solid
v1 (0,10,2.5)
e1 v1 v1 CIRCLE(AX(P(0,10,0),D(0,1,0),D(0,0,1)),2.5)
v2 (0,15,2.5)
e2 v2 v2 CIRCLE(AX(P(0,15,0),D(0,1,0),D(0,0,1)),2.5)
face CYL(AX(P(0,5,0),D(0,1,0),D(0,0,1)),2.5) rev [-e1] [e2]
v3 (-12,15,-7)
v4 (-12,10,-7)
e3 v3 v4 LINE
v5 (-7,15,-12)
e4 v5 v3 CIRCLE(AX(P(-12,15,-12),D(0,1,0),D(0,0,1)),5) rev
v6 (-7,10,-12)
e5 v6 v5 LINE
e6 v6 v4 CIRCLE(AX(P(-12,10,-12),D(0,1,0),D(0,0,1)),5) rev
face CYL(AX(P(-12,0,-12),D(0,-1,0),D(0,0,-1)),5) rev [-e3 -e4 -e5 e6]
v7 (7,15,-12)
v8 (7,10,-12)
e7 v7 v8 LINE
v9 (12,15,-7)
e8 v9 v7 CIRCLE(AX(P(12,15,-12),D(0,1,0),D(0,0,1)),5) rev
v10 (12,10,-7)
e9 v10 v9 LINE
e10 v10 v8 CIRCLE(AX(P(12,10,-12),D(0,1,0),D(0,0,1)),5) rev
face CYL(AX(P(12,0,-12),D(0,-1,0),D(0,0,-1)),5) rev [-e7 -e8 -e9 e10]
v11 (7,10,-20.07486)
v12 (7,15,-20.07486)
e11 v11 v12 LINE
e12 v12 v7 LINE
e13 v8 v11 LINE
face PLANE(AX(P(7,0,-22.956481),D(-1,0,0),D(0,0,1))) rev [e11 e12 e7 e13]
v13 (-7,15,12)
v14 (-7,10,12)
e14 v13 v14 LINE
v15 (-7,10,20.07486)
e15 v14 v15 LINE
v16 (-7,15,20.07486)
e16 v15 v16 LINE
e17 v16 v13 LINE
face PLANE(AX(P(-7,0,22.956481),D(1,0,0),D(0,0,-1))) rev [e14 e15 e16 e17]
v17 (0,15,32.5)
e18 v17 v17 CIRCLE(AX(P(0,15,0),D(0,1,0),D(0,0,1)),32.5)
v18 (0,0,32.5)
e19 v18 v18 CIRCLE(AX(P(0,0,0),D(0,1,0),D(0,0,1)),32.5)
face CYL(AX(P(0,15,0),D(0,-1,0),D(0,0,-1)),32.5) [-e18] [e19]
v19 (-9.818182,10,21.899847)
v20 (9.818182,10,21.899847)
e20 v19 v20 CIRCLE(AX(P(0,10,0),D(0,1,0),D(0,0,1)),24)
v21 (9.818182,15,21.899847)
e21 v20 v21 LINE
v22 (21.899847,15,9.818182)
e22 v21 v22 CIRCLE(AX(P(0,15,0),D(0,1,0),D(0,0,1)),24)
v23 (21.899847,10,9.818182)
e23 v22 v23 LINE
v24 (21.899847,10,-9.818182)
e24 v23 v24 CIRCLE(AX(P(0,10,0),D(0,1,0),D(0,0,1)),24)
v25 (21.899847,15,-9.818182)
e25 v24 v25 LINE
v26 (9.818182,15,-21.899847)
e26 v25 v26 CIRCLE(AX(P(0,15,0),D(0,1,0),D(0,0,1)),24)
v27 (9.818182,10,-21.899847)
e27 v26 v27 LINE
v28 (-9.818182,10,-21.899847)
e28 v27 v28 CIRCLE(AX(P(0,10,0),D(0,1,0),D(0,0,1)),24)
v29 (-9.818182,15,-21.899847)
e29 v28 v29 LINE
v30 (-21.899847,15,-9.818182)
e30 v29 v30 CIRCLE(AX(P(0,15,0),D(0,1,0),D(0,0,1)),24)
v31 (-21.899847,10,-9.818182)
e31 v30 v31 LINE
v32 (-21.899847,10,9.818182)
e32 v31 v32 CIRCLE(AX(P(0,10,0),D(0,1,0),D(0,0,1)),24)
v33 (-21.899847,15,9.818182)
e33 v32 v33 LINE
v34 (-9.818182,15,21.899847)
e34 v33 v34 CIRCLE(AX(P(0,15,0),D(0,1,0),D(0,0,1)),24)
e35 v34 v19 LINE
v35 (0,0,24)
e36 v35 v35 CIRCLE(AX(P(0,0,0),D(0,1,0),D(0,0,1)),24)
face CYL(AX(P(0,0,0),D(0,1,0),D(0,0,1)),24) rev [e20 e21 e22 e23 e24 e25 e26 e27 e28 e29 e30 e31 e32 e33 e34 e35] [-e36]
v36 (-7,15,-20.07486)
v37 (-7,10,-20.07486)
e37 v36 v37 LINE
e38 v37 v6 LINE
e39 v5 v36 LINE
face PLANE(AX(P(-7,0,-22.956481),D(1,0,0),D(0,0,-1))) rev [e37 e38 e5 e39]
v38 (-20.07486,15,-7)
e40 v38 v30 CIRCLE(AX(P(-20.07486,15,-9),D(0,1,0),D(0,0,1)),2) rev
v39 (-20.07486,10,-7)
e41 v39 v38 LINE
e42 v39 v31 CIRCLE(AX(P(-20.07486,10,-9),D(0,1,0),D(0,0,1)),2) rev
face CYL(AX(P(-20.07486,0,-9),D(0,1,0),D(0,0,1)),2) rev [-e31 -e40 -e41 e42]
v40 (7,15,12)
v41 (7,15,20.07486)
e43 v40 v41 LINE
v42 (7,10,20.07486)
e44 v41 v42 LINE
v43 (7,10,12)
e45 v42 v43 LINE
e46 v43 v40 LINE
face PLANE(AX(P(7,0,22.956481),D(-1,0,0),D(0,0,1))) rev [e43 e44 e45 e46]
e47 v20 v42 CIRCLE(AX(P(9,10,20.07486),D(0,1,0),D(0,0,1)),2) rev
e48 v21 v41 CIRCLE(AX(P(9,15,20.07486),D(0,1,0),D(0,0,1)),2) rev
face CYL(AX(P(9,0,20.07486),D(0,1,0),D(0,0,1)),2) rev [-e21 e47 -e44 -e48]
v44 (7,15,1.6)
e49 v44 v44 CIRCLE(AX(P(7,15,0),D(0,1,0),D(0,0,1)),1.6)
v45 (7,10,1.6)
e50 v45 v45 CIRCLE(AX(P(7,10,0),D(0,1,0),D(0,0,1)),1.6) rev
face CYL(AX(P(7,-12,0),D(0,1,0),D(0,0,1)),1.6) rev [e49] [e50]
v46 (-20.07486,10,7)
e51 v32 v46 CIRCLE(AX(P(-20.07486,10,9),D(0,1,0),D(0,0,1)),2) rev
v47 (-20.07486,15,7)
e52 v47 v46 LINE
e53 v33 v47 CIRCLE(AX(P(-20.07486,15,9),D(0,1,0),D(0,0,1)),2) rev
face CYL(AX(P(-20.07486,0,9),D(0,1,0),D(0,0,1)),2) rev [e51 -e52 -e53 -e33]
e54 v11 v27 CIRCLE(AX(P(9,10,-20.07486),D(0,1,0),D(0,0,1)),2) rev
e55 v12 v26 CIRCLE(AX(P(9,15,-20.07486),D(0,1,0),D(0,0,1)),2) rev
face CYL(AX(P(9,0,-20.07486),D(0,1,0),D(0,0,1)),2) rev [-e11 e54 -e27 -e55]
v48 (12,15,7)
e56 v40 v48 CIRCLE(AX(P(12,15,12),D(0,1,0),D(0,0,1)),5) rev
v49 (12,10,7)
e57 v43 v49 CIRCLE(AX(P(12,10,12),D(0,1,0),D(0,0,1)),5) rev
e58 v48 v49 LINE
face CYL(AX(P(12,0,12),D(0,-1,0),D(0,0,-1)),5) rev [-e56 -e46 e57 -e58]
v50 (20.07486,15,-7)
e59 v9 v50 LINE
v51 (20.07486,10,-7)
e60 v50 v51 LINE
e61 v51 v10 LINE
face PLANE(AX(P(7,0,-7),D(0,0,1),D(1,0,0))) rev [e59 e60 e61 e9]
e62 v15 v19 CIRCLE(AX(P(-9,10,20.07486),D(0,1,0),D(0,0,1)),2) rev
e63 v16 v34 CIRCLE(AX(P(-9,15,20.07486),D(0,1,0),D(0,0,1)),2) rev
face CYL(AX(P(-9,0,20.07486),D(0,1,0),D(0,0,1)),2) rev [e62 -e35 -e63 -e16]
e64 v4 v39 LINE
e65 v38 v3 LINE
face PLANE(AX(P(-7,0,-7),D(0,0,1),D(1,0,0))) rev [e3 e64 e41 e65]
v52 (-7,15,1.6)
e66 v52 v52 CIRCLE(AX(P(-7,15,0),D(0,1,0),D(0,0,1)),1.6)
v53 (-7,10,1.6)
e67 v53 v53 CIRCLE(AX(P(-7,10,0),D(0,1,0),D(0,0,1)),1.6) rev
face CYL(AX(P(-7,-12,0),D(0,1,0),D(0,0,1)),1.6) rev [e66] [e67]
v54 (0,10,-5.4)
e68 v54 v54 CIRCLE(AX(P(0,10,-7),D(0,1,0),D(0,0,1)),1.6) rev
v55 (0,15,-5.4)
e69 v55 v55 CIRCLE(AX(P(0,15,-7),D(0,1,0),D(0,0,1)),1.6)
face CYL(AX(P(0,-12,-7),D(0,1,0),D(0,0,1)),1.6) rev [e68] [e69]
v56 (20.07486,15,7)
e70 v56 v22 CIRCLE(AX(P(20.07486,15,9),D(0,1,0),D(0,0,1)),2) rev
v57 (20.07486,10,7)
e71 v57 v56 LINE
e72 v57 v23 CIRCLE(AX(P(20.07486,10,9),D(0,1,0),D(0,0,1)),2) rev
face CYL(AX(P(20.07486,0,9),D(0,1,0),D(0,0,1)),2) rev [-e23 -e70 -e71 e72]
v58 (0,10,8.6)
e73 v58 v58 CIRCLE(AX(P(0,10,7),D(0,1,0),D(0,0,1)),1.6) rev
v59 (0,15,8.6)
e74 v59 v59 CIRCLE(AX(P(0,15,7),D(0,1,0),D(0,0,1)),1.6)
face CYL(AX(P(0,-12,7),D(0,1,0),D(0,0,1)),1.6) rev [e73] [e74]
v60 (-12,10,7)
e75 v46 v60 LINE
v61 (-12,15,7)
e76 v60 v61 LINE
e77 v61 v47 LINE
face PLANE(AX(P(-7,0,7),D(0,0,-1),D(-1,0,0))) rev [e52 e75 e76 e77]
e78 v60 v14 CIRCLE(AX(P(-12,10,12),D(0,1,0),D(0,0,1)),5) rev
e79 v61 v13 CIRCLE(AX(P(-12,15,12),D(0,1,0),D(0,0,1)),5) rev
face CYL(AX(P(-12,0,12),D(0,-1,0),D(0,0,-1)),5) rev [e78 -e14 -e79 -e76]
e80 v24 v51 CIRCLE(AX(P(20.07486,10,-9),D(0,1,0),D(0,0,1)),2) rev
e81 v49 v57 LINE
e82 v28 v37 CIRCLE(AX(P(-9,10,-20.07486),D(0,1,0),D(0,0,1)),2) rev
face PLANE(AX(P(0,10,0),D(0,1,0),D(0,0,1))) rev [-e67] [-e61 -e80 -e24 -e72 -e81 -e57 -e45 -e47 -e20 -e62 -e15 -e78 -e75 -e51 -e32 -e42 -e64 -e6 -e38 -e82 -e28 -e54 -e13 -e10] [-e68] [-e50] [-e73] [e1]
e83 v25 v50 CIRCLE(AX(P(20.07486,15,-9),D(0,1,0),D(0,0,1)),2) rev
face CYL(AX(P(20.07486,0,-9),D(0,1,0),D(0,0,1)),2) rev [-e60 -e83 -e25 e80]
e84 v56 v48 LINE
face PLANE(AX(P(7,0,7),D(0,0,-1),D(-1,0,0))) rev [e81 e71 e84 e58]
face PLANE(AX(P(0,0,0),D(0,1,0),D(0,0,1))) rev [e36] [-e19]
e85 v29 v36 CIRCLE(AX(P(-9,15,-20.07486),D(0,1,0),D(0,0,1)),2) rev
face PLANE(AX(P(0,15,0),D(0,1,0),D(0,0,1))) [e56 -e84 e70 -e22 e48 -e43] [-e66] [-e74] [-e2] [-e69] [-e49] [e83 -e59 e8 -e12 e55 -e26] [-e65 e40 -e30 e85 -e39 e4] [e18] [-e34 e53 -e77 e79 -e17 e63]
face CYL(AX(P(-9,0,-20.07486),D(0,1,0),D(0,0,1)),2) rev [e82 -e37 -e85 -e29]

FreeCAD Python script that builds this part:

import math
import FreeCAD as App
import Part
import Sketcher
Q = App.Units.Quantity


def edges_at(feature, points):
    """Names of the edges that pass closest to the given points."""
    edges = feature.Shape.Edges
    near = lambda p: min(range(len(edges)), key=lambda i: edges[i].distToShape(Part.Vertex(*p))[0])
    return sorted({f"Edge{near(p) + 1}" for p in points})

doc = App.newDocument("Part")
body = doc.addObject("PartDesign::Body", "Body")

sketch1 = doc.addObject("Sketcher::SketchObject", "Sketch")
body.addObject(sketch1)
sketch1.AttachmentSupport = (doc.XZ_Plane, [""])
sketch1.MapMode = "FlatFace"
sketch1.addGeometry(Part.Circle(App.Vector(0, 0, 0), App.Vector(0, 0, 1), 32), False)
sketch1.addConstraint(Sketcher.Constraint("Coincident", 0, 3, -1, 1))
sketch1.addConstraint(Sketcher.Constraint("Diameter", 0, Q("65 mm")))
pad1 = doc.addObject("PartDesign::Pad", "Pad")
body.addObject(pad1)
pad1.Profile = sketch1
pad1.Length = 15
pad1.Reversed = True

sketch2 = doc.addObject("Sketcher::SketchObject", "Sketch001")
body.addObject(sketch2)
sketch2.AttachmentSupport = (doc.XZ_Plane, [""])
sketch2.MapMode = "FlatFace"
sketch2.AttachmentOffset = App.Placement(App.Vector(0, 0, -15), App.Rotation())
sketch2.addGeometry(Part.Circle(App.Vector(7, 0, 0), App.Vector(0, 0, 1), 1.6), False)
sketch2.addGeometry(Part.Circle(App.Vector(0, 7, 0), App.Vector(0, 0, 1), 1.6), False)
sketch2.addGeometry(Part.Circle(App.Vector(-7, 0, 0), App.Vector(0, 0, 1), 1.6), False)
sketch2.addGeometry(Part.Circle(App.Vector(0, -7, 0), App.Vector(0, 0, 1), 1.6), False)
sketch2.addConstraint(Sketcher.Constraint("Equal", 0, 1))
sketch2.addConstraint(Sketcher.Constraint("Equal", 1, 2))
sketch2.addConstraint(Sketcher.Constraint("Equal", 2, 3))
sketch2.addConstraint(Sketcher.Constraint("Symmetric", 0, 3, 2, 3, -1, 1))
sketch2.addConstraint(Sketcher.Constraint("Symmetric", 1, 3, 3, 3, -1, 1))
sketch2.addConstraint(Sketcher.Constraint("PointOnObject", 0, 3, -1))
sketch2.addConstraint(Sketcher.Constraint("PointOnObject", 1, 3, -2))
sketch2.addConstraint(Sketcher.Constraint("Diameter", 0, Q("3.2 mm")))
sketch2.addConstraint(Sketcher.Constraint("DistanceX", -1, 1, 0, 3, Q("7 mm")))
sketch2.addConstraint(Sketcher.Constraint("DistanceY", -1, 1, 1, 3, Q("7 mm")))
pocket1 = doc.addObject("PartDesign::Pocket", "Pocket")
body.addObject(pocket1)
pocket1.Profile = sketch2
pocket1.Length = 27
pocket1.Reversed = True

sketch3 = doc.addObject("Sketcher::SketchObject", "Sketch002")
body.addObject(sketch3)
sketch3.AttachmentSupport = (doc.XZ_Plane, [""])
sketch3.MapMode = "FlatFace"
sketch3.AttachmentOffset = App.Placement(App.Vector(0, 0, -15), App.Rotation())
sketch3.addGeometry(Part.LineSegment(App.Vector(7, -23, 0), App.Vector(7, -7, 0)), False)
sketch3.addGeometry(Part.LineSegment(App.Vector(7, -7, 0), App.Vector(23, -7, 0)), False)
sketch3.addGeometry(Part.ArcOfCircle(Part.Circle(App.Vector(0, 0, 0), App.Vector(0, 0, 1), 24), math.radians(-73), math.radians(-17)), False)
sketch3.addGeometry(Part.LineSegment(App.Vector(-23, -7, 0), App.Vector(-7, -7, 0)), False)
sketch3.addGeometry(Part.LineSegment(App.Vector(-7, -7, 0), App.Vector(-7, -23, 0)), False)
sketch3.addGeometry(Part.ArcOfCircle(Part.Circle(App.Vector(0, 0, 0), App.Vector(0, 0, 1), 24), math.radians(-163), math.radians(-107)), False)
sketch3.addGeometry(Part.LineSegment(App.Vector(23, 7, 0), App.Vector(7, 7, 0)), False)
sketch3.addGeometry(Part.LineSegment(App.Vector(7, 7, 0), App.Vector(7, 23, 0)), False)
sketch3.addGeometry(Part.ArcOfCircle(Part.Circle(App.Vector(0, 0, 0), App.Vector(0, 0, 1), 24), math.radians(17), math.radians(73)), False)
sketch3.addGeometry(Part.LineSegment(App.Vector(-7, 7, 0), App.Vector(-23, 7, 0)), False)
sketch3.addGeometry(Part.ArcOfCircle(Part.Circle(App.Vector(0, 0, 0), App.Vector(0, 0, 1), 24), math.radians(107), math.radians(163)), False)
sketch3.addGeometry(Part.LineSegment(App.Vector(-7, 23, 0), App.Vector(-7, 7, 0)), False)
sketch3.addConstraint(Sketcher.Constraint("Coincident", 0, 2, 1, 1))
sketch3.addConstraint(Sketcher.Constraint("Coincident", 1, 2, 2, 2))
sketch3.addConstraint(Sketcher.Constraint("Coincident", 2, 1, 0, 1))
sketch3.addConstraint(Sketcher.Constraint("Coincident", 3, 2, 4, 1))
sketch3.addConstraint(Sketcher.Constraint("Coincident", 4, 2, 5, 2))
sketch3.addConstraint(Sketcher.Constraint("Coincident", 5, 1, 3, 1))
sketch3.addConstraint(Sketcher.Constraint("Coincident", 6, 2, 7, 1))
sketch3.addConstraint(Sketcher.Constraint("Coincident", 7, 2, 8, 2))
sketch3.addConstraint(Sketcher.Constraint("Coincident", 8, 1, 6, 1))
sketch3.addConstraint(Sketcher.Constraint("Coincident", 9, 2, 10, 2))
sketch3.addConstraint(Sketcher.Constraint("Coincident", 10, 1, 11, 1))
sketch3.addConstraint(Sketcher.Constraint("Coincident", 11, 2, 9, 1))
sketch3.addConstraint(Sketcher.Constraint("Vertical", 0))
sketch3.addConstraint(Sketcher.Constraint("Horizontal", 1))
sketch3.addConstraint(Sketcher.Constraint("Horizontal", 3))
sketch3.addConstraint(Sketcher.Constraint("Vertical", 4))
sketch3.addConstraint(Sketcher.Constraint("Horizontal", 6))
sketch3.addConstraint(Sketcher.Constraint("Vertical", 7))
sketch3.addConstraint(Sketcher.Constraint("Horizontal", 9))
sketch3.addConstraint(Sketcher.Constraint("Vertical", 11))
sketch3.addConstraint(Sketcher.Constraint("Coincident", 2, 3, -1, 1))
sketch3.addConstraint(Sketcher.Constraint("Coincident", 5, 3, -1, 1))
sketch3.addConstraint(Sketcher.Constraint("Coincident", 8, 3, -1, 1))
sketch3.addConstraint(Sketcher.Constraint("Coincident", 10, 3, -1, 1))
sketch3.addConstraint(Sketcher.Constraint("Equal", 2, 5))
sketch3.addConstraint(Sketcher.Constraint("Equal", 5, 8))
sketch3.addConstraint(Sketcher.Constraint("Equal", 8, 10))
sketch3.addConstraint(Sketcher.Constraint("Symmetric", 3, 2, 6, 2, -1, 1))
sketch3.addConstraint(Sketcher.Constraint("Symmetric", 0, 2, 11, 2, -1, 1))
sketch3.addConstraint(Sketcher.Constraint("Symmetric", 0, 2, 3, 2, -2))
sketch3.addConstraint(Sketcher.Constraint("Equal", 9, 0))
sketch3.addConstraint(Sketcher.Constraint("Radius", 2, Q("24 mm")))
sketch3.addConstraint(Sketcher.Constraint("DistanceX", -1, 1, 0, 2, Q("7 mm")))
pocket2 = doc.addObject("PartDesign::Pocket", "Pocket001")
body.addObject(pocket2)
pocket2.Profile = sketch3
pocket2.Length = 15
pocket2.Reversed = True
doc.recompute()

fillet = doc.addObject("PartDesign::Fillet", "Fillet")
body.addObject(fillet)
fillet.Base = (pocket2, edges_at(pocket2, [
    (-7, 7.5, -7),
    (7, 7.5, 7),
    (-7, 7.5, 7),
    (7, 7.5, -7),
]))
fillet.Radius = 5
doc.recompute()

fillet2 = doc.addObject("PartDesign::Fillet", "Fillet001")
body.addObject(fillet2)
fillet2.Base = (fillet, edges_at(fillet, [
    (-7, 7.5, -22.956),
    (-22.956, 7.5, -7),
    (7, 7.5, 22.956),
    (22.956, 7.5, 7),
    (-7, 7.5, 22.956),
    (-22.956, 7.5, 7),
    (7, 7.5, -22.956),
    (22.956, 7.5, -7),
]))
fillet2.Radius = 2

sketch4 = doc.addObject("Sketcher::SketchObject", "Sketch003")
body.addObject(sketch4)
sketch4.AttachmentSupport = (doc.XZ_Plane, [""])
sketch4.MapMode = "FlatFace"
sketch4.AttachmentOffset = App.Placement(App.Vector(0, 0, -10), App.Rotation())
sketch4.addGeometry(Part.Circle(App.Vector(0, 0, 0), App.Vector(0, 0, 1), 24), False)
sketch4.addConstraint(Sketcher.Constraint("Coincident", 0, 3, -1, 1))
sketch4.addConstraint(Sketcher.Constraint("Diameter", 0, Q("48 mm")))
pocket3 = doc.addObject("PartDesign::Pocket", "Pocket002")
body.addObject(pocket3)
pocket3.Profile = sketch4
pocket3.Length = 10
pocket3.Reversed = True

sketch5 = doc.addObject("Sketcher::SketchObject", "Sketch004")
body.addObject(sketch5)
sketch5.AttachmentSupport = (doc.XZ_Plane, [""])
sketch5.MapMode = "FlatFace"
sketch5.AttachmentOffset = App.Placement(App.Vector(0, 0, -15), App.Rotation())
sketch5.addGeometry(Part.Circle(App.Vector(0, 0, 0), App.Vector(0, 0, 1), 2.5), False)
sketch5.addConstraint(Sketcher.Constraint("Coincident", 0, 3, -1, 1))
sketch5.addConstraint(Sketcher.Constraint("Diameter", 0, Q("5 mm")))
pocket4 = doc.addObject("PartDesign::Pocket", "Pocket003")
body.addObject(pocket4)
pocket4.Profile = sketch5
pocket4.Length = 10
pocket4.Reversed = True

doc.recompute()
